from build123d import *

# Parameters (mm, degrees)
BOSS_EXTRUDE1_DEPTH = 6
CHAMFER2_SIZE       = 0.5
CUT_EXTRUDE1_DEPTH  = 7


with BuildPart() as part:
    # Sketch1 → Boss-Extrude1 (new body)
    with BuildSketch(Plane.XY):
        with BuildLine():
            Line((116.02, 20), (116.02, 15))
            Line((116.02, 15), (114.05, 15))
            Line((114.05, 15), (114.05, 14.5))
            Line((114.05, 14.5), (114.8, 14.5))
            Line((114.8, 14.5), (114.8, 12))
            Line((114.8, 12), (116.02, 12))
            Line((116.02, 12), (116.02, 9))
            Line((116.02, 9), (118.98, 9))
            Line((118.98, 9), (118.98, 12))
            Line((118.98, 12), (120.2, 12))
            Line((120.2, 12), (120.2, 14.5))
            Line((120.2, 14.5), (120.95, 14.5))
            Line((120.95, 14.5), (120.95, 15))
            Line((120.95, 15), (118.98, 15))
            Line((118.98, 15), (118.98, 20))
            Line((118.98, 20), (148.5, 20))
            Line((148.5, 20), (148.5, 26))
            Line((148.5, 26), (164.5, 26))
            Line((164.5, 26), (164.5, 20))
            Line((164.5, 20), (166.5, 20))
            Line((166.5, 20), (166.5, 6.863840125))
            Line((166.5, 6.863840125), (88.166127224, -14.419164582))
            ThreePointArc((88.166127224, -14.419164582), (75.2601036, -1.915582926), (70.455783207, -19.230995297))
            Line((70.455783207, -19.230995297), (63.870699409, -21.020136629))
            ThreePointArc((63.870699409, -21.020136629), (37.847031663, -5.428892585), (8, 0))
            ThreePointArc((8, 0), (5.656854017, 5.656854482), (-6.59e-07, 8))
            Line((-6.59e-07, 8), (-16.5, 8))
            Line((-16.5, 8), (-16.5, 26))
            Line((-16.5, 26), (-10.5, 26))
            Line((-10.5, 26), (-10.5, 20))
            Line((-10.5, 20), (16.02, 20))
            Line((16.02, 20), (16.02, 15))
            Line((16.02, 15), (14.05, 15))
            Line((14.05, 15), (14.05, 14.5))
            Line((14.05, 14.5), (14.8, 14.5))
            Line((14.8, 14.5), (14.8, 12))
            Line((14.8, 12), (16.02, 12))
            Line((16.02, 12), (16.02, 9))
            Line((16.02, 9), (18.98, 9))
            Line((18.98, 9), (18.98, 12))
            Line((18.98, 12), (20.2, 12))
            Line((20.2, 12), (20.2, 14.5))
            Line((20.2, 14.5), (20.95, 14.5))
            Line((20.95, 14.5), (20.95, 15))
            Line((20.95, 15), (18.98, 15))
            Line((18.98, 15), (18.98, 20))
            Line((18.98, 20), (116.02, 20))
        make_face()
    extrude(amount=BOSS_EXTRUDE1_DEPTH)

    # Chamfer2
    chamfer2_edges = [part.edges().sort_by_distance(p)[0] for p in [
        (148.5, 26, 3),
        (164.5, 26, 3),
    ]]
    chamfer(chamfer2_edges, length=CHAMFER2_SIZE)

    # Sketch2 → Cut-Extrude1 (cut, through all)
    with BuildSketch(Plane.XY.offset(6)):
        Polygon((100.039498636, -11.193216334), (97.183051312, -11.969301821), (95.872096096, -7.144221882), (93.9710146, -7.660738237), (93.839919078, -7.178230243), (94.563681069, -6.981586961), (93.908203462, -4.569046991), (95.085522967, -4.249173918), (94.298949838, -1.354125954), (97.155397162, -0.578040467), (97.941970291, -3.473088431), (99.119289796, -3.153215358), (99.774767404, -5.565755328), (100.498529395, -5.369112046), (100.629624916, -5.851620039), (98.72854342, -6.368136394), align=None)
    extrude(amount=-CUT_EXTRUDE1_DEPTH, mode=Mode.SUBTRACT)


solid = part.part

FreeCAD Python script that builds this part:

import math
import FreeCAD as App
import Part
import Sketcher
Q = App.Units.Quantity


def edges_at(feature, points):
    """Names of the edges that pass closest to the given points."""
    edges = feature.Shape.Edges
    near = lambda p: min(range(len(edges)), key=lambda i: edges[i].distToShape(Part.Vertex(*p))[0])
    return sorted({f"Edge{near(p) + 1}" for p in points})


def add_polygon(sketch, points):
    """Adds a closed chain of lines whose ends are joined by coincident constraints."""
    first, n = sketch.GeometryCount, len(points)
    for a, b in zip(points, points[1:] + points[:1]):
        sketch.addGeometry(Part.LineSegment(App.Vector(*a, 0), App.Vector(*b, 0)), False)
    for i in range(n):
        sketch.addConstraint(Sketcher.Constraint("Coincident", first + i, 2, first + (i + 1) % n, 1))

doc = App.newDocument("Part")
body = doc.addObject("PartDesign::Body", "Body")

# Sketch on XY plane
sketch1 = body.newObject("Sketcher::SketchObject", "Sketch")
sketch1.AttachmentSupport = (doc.getObject("XY_Plane"), [""])
sketch1.MapMode = "FlatFace"
sketch1.addGeometry([
    Part.LineSegment(App.Vector(116, 15, 0), App.Vector(116, 20, 0)),  # 0
    Part.LineSegment(App.Vector(116, 20, 0), App.Vector(19, 20, 0)),  # 1
    Part.LineSegment(App.Vector(19, 20, 0), App.Vector(19, 15, 0)),  # 2
    Part.LineSegment(App.Vector(19, 15, 0), App.Vector(20.9, 15, 0)),  # 3
    Part.LineSegment(App.Vector(20.9, 15, 0), App.Vector(20.9, 14.5, 0)),  # 4
    Part.LineSegment(App.Vector(20.9, 14.5, 0), App.Vector(20.2, 14.5, 0)),  # 5
    Part.LineSegment(App.Vector(20.2, 14.5, 0), App.Vector(20.2, 12, 0)),  # 6
    Part.LineSegment(App.Vector(20.2, 12, 0), App.Vector(19, 12, 0)),  # 7
    Part.LineSegment(App.Vector(19, 12, 0), App.Vector(19, 9, 0)),  # 8
    Part.LineSegment(App.Vector(19, 9, 0), App.Vector(16, 9, 0)),  # 9
    Part.LineSegment(App.Vector(16, 9, 0), App.Vector(16, 12, 0)),  # 10
    Part.LineSegment(App.Vector(16, 12, 0), App.Vector(14.8, 12, 0)),  # 11
    Part.LineSegment(App.Vector(14.8, 12, 0), App.Vector(14.8, 14.5, 0)),  # 12
    Part.LineSegment(App.Vector(14.8, 14.5, 0), App.Vector(14.1, 14.5, 0)),  # 13
    Part.LineSegment(App.Vector(14.1, 14.5, 0), App.Vector(14.1, 15, 0)),  # 14
    Part.LineSegment(App.Vector(14.1, 15, 0), App.Vector(16, 15, 0)),  # 15
    Part.LineSegment(App.Vector(16, 15, 0), App.Vector(16, 20, 0)),  # 16
    Part.LineSegment(App.Vector(16, 20, 0), App.Vector(-10.5, 20, 0)),  # 17
    Part.LineSegment(App.Vector(-10.5, 20, 0), App.Vector(-10.5, 26, 0)),  # 18
    Part.LineSegment(App.Vector(-10.5, 26, 0), App.Vector(-16.5, 26, 0)),  # 19
    Part.LineSegment(App.Vector(-16.5, 26, 0), App.Vector(-16.5, 8, 0)),  # 20
    Part.LineSegment(App.Vector(-16.5, 8, 0), App.Vector(0, 8, 0)),  # 21
    Part.ArcOfCircle(Part.Circle(App.Vector(0, 0, 0), App.Vector(0, 0, 1), 8), math.radians(0), math.radians(90)),  # 22
    Part.ArcOfCircle(Part.Circle(App.Vector(8, -84.8, 0), App.Vector(0, 0, 1), 84.8), math.radians(49), math.radians(90)),  # 23
    Part.LineSegment(App.Vector(63.9, -21, 0), App.Vector(70.5, -19.2, 0)),  # 24
    Part.ArcOfCircle(Part.Circle(App.Vector(78, -12, 0), App.Vector(0, 0, 1), 10.4), math.radians(-13), math.radians(224)),  # 25
    Part.LineSegment(App.Vector(88.2, -14.4, 0), App.Vector(166.5, 6.9, 0)),  # 26
    Part.LineSegment(App.Vector(166.5, 6.9, 0), App.Vector(166.5, 20, 0)),  # 27
    Part.LineSegment(App.Vector(166.5, 20, 0), App.Vector(164.5, 20, 0)),  # 28
    Part.LineSegment(App.Vector(164.5, 20, 0), App.Vector(164.5, 26, 0)),  # 29
    Part.LineSegment(App.Vector(164.5, 26, 0), App.Vector(148.5, 26, 0)),  # 30
    Part.LineSegment(App.Vector(148.5, 26, 0), App.Vector(148.5, 20, 0)),  # 31
    Part.LineSegment(App.Vector(148.5, 20, 0), App.Vector(119, 20, 0)),  # 32
    Part.LineSegment(App.Vector(119, 20, 0), App.Vector(119, 15, 0)),  # 33
    Part.LineSegment(App.Vector(119, 15, 0), App.Vector(121, 15, 0)),  # 34
    Part.LineSegment(App.Vector(121, 15, 0), App.Vector(121, 14.5, 0)),  # 35
    Part.LineSegment(App.Vector(121, 14.5, 0), App.Vector(120.2, 14.5, 0)),  # 36
    Part.LineSegment(App.Vector(120.2, 14.5, 0), App.Vector(120.2, 12, 0)),  # 37
    Part.LineSegment(App.Vector(120.2, 12, 0), App.Vector(119, 12, 0)),  # 38
    Part.LineSegment(App.Vector(119, 12, 0), App.Vector(119, 9, 0)),  # 39
    Part.LineSegment(App.Vector(119, 9, 0), App.Vector(116, 9, 0)),  # 40
    Part.LineSegment(App.Vector(116, 9, 0), App.Vector(116, 12, 0)),  # 41
    Part.LineSegment(App.Vector(116, 12, 0), App.Vector(114.8, 12, 0)),  # 42
    Part.LineSegment(App.Vector(114.8, 12, 0), App.Vector(114.8, 14.5, 0)),  # 43
    Part.LineSegment(App.Vector(114.8, 14.5, 0), App.Vector(114, 14.5, 0)),  # 44
    Part.LineSegment(App.Vector(114, 14.5, 0), App.Vector(114, 15, 0)),  # 45
    Part.LineSegment(App.Vector(114, 15, 0), App.Vector(116, 15, 0)),  # 46
], False)
sketch1.addConstraint([
    Sketcher.Constraint("Coincident", 0, 2, 1, 1),
    Sketcher.Constraint("Coincident", 1, 2, 2, 1),
    Sketcher.Constraint("Coincident", 2, 2, 3, 1),
    Sketcher.Constraint("Coincident", 3, 2, 4, 1),
    Sketcher.Constraint("Coincident", 4, 2, 5, 1),
    Sketcher.Constraint("Coincident", 5, 2, 6, 1),
    Sketcher.Constraint("Coincident", 6, 2, 7, 1),
    Sketcher.Constraint("Coincident", 7, 2, 8, 1),
    Sketcher.Constraint("Coincident", 8, 2, 9, 1),
    Sketcher.Constraint("Coincident", 9, 2, 10, 1),
    Sketcher.Constraint("Coincident", 10, 2, 11, 1),
    Sketcher.Constraint("Coincident", 11, 2, 12, 1),
    Sketcher.Constraint("Coincident", 12, 2, 13, 1),
    Sketcher.Constraint("Coincident", 13, 2, 14, 1),
    Sketcher.Constraint("Coincident", 14, 2, 15, 1),
    Sketcher.Constraint("Coincident", 15, 2, 16, 1),
    Sketcher.Constraint("Coincident", 16, 2, 17, 1),
    Sketcher.Constraint("Coincident", 17, 2, 18, 1),
    Sketcher.Constraint("Coincident", 18, 2, 19, 1),
    Sketcher.Constraint("Coincident", 19, 2, 20, 1),
    Sketcher.Constraint("Coincident", 20, 2, 21, 1),
    Sketcher.Constraint("Tangent", 21, 2, 22, 2),
    Sketcher.Constraint("Coincident", 22, 1, 23, 2),
    Sketcher.Constraint("Coincident", 23, 1, 24, 1),
    Sketcher.Constraint("Coincident", 24, 2, 25, 2),
    Sketcher.Constraint("Coincident", 25, 1, 26, 1),
    Sketcher.Constraint("Coincident", 26, 2, 27, 1),
    Sketcher.Constraint("Coincident", 27, 2, 28, 1),
    Sketcher.Constraint("Coincident", 28, 2, 29, 1),
    Sketcher.Constraint("Coincident", 29, 2, 30, 1),
    Sketcher.Constraint("Coincident", 30, 2, 31, 1),
    Sketcher.Constraint("Coincident", 31, 2, 32, 1),
    Sketcher.Constraint("Coincident", 32, 2, 33, 1),
    Sketcher.Constraint("Coincident", 33, 2, 34, 1),
    Sketcher.Constraint("Coincident", 34, 2, 35, 1),
    Sketcher.Constraint("Coincident", 35, 2, 36, 1),
    Sketcher.Constraint("Coincident", 36, 2, 37, 1),
    Sketcher.Constraint("Coincident", 37, 2, 38, 1),
    Sketcher.Constraint("Coincident", 38, 2, 39, 1),
    Sketcher.Constraint("Coincident", 39, 2, 40, 1),
    Sketcher.Constraint("Coincident", 40, 2, 41, 1),
    Sketcher.Constraint("Coincident", 41, 2, 42, 1),
    Sketcher.Constraint("Coincident", 42, 2, 43, 1),
    Sketcher.Constraint("Coincident", 43, 2, 44, 1),
    Sketcher.Constraint("Coincident", 44, 2, 45, 1),
    Sketcher.Constraint("Coincident", 45, 2, 46, 1),
    Sketcher.Constraint("Coincident", 46, 2, 0, 1),
    Sketcher.Constraint("Vertical", 0),
    Sketcher.Constraint("Horizontal", 1),
    Sketcher.Constraint("Vertical", 2),
    Sketcher.Constraint("Horizontal", 3),
    Sketcher.Constraint("Vertical", 4),
    Sketcher.Constraint("Horizontal", 5),
    Sketcher.Constraint("Vertical", 6),
    Sketcher.Constraint("Horizontal", 7),
    Sketcher.Constraint("Vertical", 8),
    Sketcher.Constraint("Horizontal", 9),
    Sketcher.Constraint("Vertical", 10),
    Sketcher.Constraint("Horizontal", 11),
    Sketcher.Constraint("Vertical", 12),
    Sketcher.Constraint("Horizontal", 13),
    Sketcher.Constraint("Vertical", 14),
    Sketcher.Constraint("Horizontal", 15),
    Sketcher.Constraint("Vertical", 16),
    Sketcher.Constraint("Horizontal", 17),
    Sketcher.Constraint("Vertical", 18),
    Sketcher.Constraint("Horizontal", 19),
    Sketcher.Constraint("Vertical", 20),
    Sketcher.Constraint("Horizontal", 21),
    Sketcher.Constraint("Vertical", 27),
    Sketcher.Constraint("Horizontal", 28),
    Sketcher.Constraint("Vertical", 29),
    Sketcher.Constraint("Horizontal", 30),
    Sketcher.Constraint("Vertical", 31),
    Sketcher.Constraint("Horizontal", 32),
    Sketcher.Constraint("Vertical", 33),
    Sketcher.Constraint("Horizontal", 34),
    Sketcher.Constraint("Vertical", 35),
    Sketcher.Constraint("Horizontal", 36),
    Sketcher.Constraint("Vertical", 37),
    Sketcher.Constraint("Horizontal", 38),
    Sketcher.Constraint("Vertical", 39),
    Sketcher.Constraint("Horizontal", 40),
    Sketcher.Constraint("Vertical", 41),
    Sketcher.Constraint("Horizontal", 42),
    Sketcher.Constraint("Vertical", 43),
    Sketcher.Constraint("Horizontal", 44),
    Sketcher.Constraint("Vertical", 45),
    Sketcher.Constraint("Horizontal", 46),
    Sketcher.Constraint("Coincident", 22, 3, -1, 1),
    Sketcher.Constraint("PointOnObject", 22, 1, -1),
    Sketcher.Constraint("Parallel", 24, 26),
    Sketcher.Constraint("Horizontal", 7, 2, 10, 2),
    Sketcher.Constraint("Horizontal", 5, 2, 12, 2),
    Sketcher.Constraint("Horizontal", 3, 2, 14, 2),
    Sketcher.Constraint("Horizontal", 1, 2, 16, 2),
    Sketcher.Constraint("Horizontal", 17, 2, 27, 2),
    Sketcher.Constraint("Horizontal", 19, 2, 29, 2),
    Sketcher.Constraint("Horizontal", 28, 2, 31, 2),
    Sketcher.Constraint("Horizontal", 15, 2, 33, 2),
    Sketcher.Constraint("Horizontal", 13, 2, 35, 2),
    Sketcher.Constraint("Horizontal", 11, 2, 37, 2),
    Sketcher.Constraint("Horizontal", 9, 2, 39, 2),
    Sketcher.Constraint("Horizontal", 38, 2, 41, 2),
    Sketcher.Constraint("Horizontal", 36, 2, 43, 2),
    Sketcher.Constraint("Horizontal", 34, 2, 45, 2),
    Sketcher.Constraint("Vertical", 2, 2, 7, 2),
    Sketcher.Constraint("Vertical", 10, 2, 15, 2),
    Sketcher.Constraint("Vertical", 23, 3, 22, 1),
    Sketcher.Constraint("Vertical", 33, 2, 38, 2),
    Sketcher.Constraint("Vertical", 0, 2, 40, 2),
    Sketcher.Constraint("Equal", 7, 11),
    Sketcher.Constraint("Equal", 5, 13),
    Sketcher.Constraint("Equal", 15, 34),
    Sketcher.Constraint("Equal", 13, 36),
    Sketcher.Constraint("Equal", 9, 40),
    Sketcher.Constraint("Equal", 38, 42),
    Sketcher.Constraint("Equal", 36, 44),
    Sketcher.Constraint("Equal", 19, 18),
    Sketcher.Constraint("Radius", 22, Q("8 mm")),
    Sketcher.Constraint("DistanceX", 19, 2, 19, 1, Q("6 mm")),
    Sketcher.Constraint("DistanceX", 28, 2, 28, 1, Q("2 mm")),
    Sketcher.Constraint("DistanceX", 30, 2, 30, 1, Q("16 mm")),
    Sketcher.Constraint("DistanceY", 0, 1, 0, 2, Q("5 mm")),
    Sketcher.Constraint("DistanceY", 8, 2, 8, 1, Q("3 mm")),
    Sketcher.Constraint("DistanceY", 20, 2, 20, 1, Q("18 mm")),
    Sketcher.Constraint("Radius", 25, Q("10.45 mm")),
    Sketcher.Constraint("DistanceX", 21, 1, 21, 2, Q("16.499999 mm")),
    Sketcher.Constraint("DistanceY", 4, 2, 4, 1, Q("0.5 mm")),
    Sketcher.Constraint("DistanceY", 6, 2, 6, 1, Q("2.5 mm")),
    Sketcher.Constraint("DistanceX", -1, 1, 25, 3, Q("78 mm")),
    Sketcher.Constraint("DistanceY", 25, 3, -1, 1, Q("12 mm")),
    Sketcher.Constraint("DistanceX", 1, 2, 1, 1, Q("97.04 mm")),
    Sketcher.Constraint("DistanceX", 3, 1, 3, 2, Q("1.97 mm")),
    Sketcher.Constraint("DistanceX", 5, 2, 5, 1, Q("0.75 mm")),
    Sketcher.Constraint("DistanceX", 9, 2, 9, 1, Q("2.96 mm")),
    Sketcher.Constraint("DistanceX", 17, 2, 17, 1, Q("26.52 mm")),
    Sketcher.Constraint("DistanceX", 32, 2, 32, 1, Q("29.52 mm")),
    Sketcher.Constraint("Radius", 23, Q("84.761133 mm")),
    Sketcher.Constraint("DistanceY", 27, 1, 27, 2, Q("13.13616 mm")),
    Sketcher.Constraint("DistanceX", -1, 1, 23, 1, Q("63.870699 mm")),
    Sketcher.Constraint("DistanceY", 24, 2, 25, 1, Q("4.811831 mm")),
])
pad1 = body.newObject("PartDesign::Pad", "Pad")
pad1.Profile = sketch1
pad1.Length = 6
doc.recompute()

chamfer = body.newObject("PartDesign::Chamfer", "Chamfer")
chamfer.Base = (pad1, edges_at(pad1, [(148.5, 26, 3), (164.5, 26, 3)]))
chamfer.Size = 0.5

# Sketch on XY plane
sketch2 = body.newObject("Sketcher::SketchObject", "Sketch001")
sketch2.AttachmentSupport = (doc.getObject("XY_Plane"), [""])
sketch2.MapMode = "FlatFace"
sketch2.AttachmentOffset = App.Placement(App.Vector(0, 0, 6), App.Rotation())
add_polygon(sketch2, [(97.18, -11.97), (100.04, -11.19), (98.73, -6.37), (100.63, -5.85), (100.5, -5.37), (99.77, -5.57), (99.12, -3.15), (97.94, -3.47), (97.16, -0.58), (94.3, -1.35), (95.09, -4.25), (93.91, -4.57), (94.56, -6.98), (93.84, -7.18), (93.97, -7.66), (95.87, -7.14)])  # lines 0-15
sketch2.addConstraint([
    Sketcher.Constraint("Perpendicular", 0, 1),
    Sketcher.Constraint("Perpendicular", 1, 2),
    Sketcher.Constraint("Perpendicular", 2, 3),
    Sketcher.Constraint("Perpendicular", 3, 4),
    Sketcher.Constraint("Perpendicular", 4, 5),
    Sketcher.Constraint("Perpendicular", 5, 6),
    Sketcher.Constraint("Perpendicular", 6, 7),
    Sketcher.Constraint("Perpendicular", 7, 8),
    Sketcher.Constraint("Perpendicular", 8, 9),
    Sketcher.Constraint("Perpendicular", 9, 10),
    Sketcher.Constraint("Perpendicular", 10, 11),
    Sketcher.Constraint("Perpendicular", 11, 12),
    Sketcher.Constraint("Perpendicular", 12, 13),
    Sketcher.Constraint("Perpendicular", 13, 14),
    Sketcher.Constraint("Perpendicular", 14, 15),
    Sketcher.Constraint("Equal", 0, 8),
    Sketcher.Constraint("Equal", 7, 9),
    Sketcher.Constraint("Equal", 6, 10),
    Sketcher.Constraint("Equal", 5, 11),
    Sketcher.Constraint("Equal", 4, 12),
    Sketcher.Constraint("Equal", 3, 13),
    Sketcher.Constraint("Equal", 2, 14),
    Sketcher.Constraint("Distance", 1, Q("5 mm")),
    Sketcher.Constraint("Distance", 7, Q("3 mm")),
    Sketcher.Constraint("Distance", 3, Q("0.5 mm")),
    Sketcher.Constraint("Distance", 5, Q("2.5 mm")),
    Sketcher.Constraint("Distance", 0, Q("2.96 mm")),
    Sketcher.Constraint("Distance", 2, Q("1.97 mm")),
    Sketcher.Constraint("Distance", 4, Q("0.75 mm")),
    Sketcher.Constraint("DistanceY", 0, 2, 5, 2, Q("8.040001 mm")),
    Sketcher.Constraint("DistanceX", -1, 1, 0, 2, Q("100.039499 mm")),
    Sketcher.Constraint("DistanceY", 15, 2, -1, 1, Q("11.969302 mm")),
])
pocket1 = body.newObject("PartDesign::Pocket", "Pocket")
pocket1.Profile = sketch2
pocket1.Type = "ThroughAll"

doc.recompute()
